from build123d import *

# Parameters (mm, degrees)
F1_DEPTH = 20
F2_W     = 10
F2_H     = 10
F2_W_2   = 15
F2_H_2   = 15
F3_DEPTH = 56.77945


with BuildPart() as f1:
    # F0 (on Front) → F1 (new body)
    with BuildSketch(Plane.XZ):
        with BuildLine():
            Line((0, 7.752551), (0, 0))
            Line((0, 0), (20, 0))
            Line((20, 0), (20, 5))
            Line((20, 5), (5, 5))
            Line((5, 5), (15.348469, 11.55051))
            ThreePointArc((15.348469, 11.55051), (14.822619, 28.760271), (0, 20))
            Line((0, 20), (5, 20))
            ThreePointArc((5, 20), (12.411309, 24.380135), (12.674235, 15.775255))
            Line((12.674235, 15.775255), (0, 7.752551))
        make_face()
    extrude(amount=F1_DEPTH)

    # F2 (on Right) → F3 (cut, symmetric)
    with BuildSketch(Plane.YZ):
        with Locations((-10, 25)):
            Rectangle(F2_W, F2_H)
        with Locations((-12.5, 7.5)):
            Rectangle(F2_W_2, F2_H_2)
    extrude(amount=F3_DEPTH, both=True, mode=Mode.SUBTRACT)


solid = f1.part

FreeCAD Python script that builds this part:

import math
import FreeCAD as App
import Part
import Sketcher
from FreeCAD import Vector
Q = App.Units.Quantity

doc = App.newDocument("Part")
body = doc.addObject("PartDesign::Body", "Body")

# Sketch on XZ plane
sketch1 = body.newObject("Sketcher::SketchObject", "Sketch")
sketch1.AttachmentSupport = (doc.getObject("XZ_Plane"), [""])
sketch1.MapMode = "FlatFace"
sketch1.addGeometry([
    Part.LineSegment(Vector(0, 7.8, 0), Vector(0, 0, 0)),  # 0
    Part.LineSegment(Vector(0, 0, 0), Vector(20, 0, 0)),  # 1
    Part.LineSegment(Vector(20, 0, 0), Vector(20, 5, 0)),  # 2
    Part.LineSegment(Vector(20, 5, 0), Vector(5, 5, 0)),  # 3
    Part.LineSegment(Vector(5, 5, 0), Vector(15.3, 11.6, 0)),  # 4
    Part.ArcOfCircle(Part.Circle(Vector(10, 20, 0), Vector(0, 0, 1), 10), math.radians(-58), math.radians(180)),  # 5
    Part.LineSegment(Vector(0, 20, 0), Vector(5, 20, 0)),  # 6
    Part.ArcOfCircle(Part.Circle(Vector(10, 20, 0), Vector(0, 0, 1), 5), math.radians(-58), math.radians(180)),  # 7
    Part.LineSegment(Vector(12.7, 15.8, 0), Vector(0, 7.8, 0)),  # 8
], False)
sketch1.addConstraint([
    Sketcher.Constraint("Coincident", 0, 2, 1, 1),
    Sketcher.Constraint("Coincident", 1, 2, 2, 1),
    Sketcher.Constraint("Coincident", 2, 2, 3, 1),
    Sketcher.Constraint("Coincident", 3, 2, 4, 1),
    Sketcher.Constraint("Tangent", 4, 2, 5, 1),
    Sketcher.Constraint("Coincident", 5, 2, 6, 1),
    Sketcher.Constraint("Coincident", 6, 2, 7, 2),
    Sketcher.Constraint("Tangent", 7, 1, 8, 1),
    Sketcher.Constraint("Coincident", 8, 2, 0, 1),
    Sketcher.Constraint("Vertical", 0),
    Sketcher.Constraint("Horizontal", 1),
    Sketcher.Constraint("Vertical", 2),
    Sketcher.Constraint("Horizontal", 3),
    Sketcher.Constraint("Horizontal", 6),
    Sketcher.Constraint("Coincident", 0, 2, -1, 1),
    Sketcher.Constraint("Coincident", 7, 3, 5, 3),
    Sketcher.Constraint("PointOnObject", 5, 2, -2),
    Sketcher.Constraint("Parallel", 4, 8),
    Sketcher.Constraint("Horizontal", 7, 3, 5, 2),
    Sketcher.Constraint("Vertical", 3, 2, 6, 2),
    Sketcher.Constraint("Equal", 6, 2),
    Sketcher.Constraint("Radius", 5, Q("10 mm")),
    Sketcher.Constraint("Radius", 7, Q("5 mm")),
    Sketcher.Constraint("DistanceX", 1, 1, 1, 2, Q("20 mm")),
    Sketcher.Constraint("Distance", 8, Q("15 mm")),
])
pad1 = body.newObject("PartDesign::Pad", "Pad")
pad1.Profile = sketch1
pad1.Length = 20

# Sketch on YZ plane
sketch2 = body.newObject("Sketcher::SketchObject", "Sketch001")
sketch2.AttachmentSupport = (doc.getObject("YZ_Plane"), [""])
sketch2.MapMode = "FlatFace"
sketch2.addGeometry([
    Part.LineSegment(Vector(-15, 30, 0), Vector(-15, 20, 0)),  # 0
    Part.LineSegment(Vector(-15, 20, 0), Vector(-5, 20, 0)),  # 1
    Part.LineSegment(Vector(-5, 20, 0), Vector(-5, 30, 0)),  # 2
    Part.LineSegment(Vector(-5, 30, 0), Vector(-15, 30, 0)),  # 3
    Part.LineSegment(Vector(-20, 15, 0), Vector(-20, 0, 0)),  # 4
    Part.LineSegment(Vector(-20, 0, 0), Vector(-5, 0, 0)),  # 5
    Part.LineSegment(Vector(-5, 0, 0), Vector(-5, 15, 0)),  # 6
    Part.LineSegment(Vector(-5, 15, 0), Vector(-20, 15, 0)),  # 7
], False)
sketch2.addConstraint([
    Sketcher.Constraint("Coincident", 0, 2, 1, 1),
    Sketcher.Constraint("Coincident", 1, 2, 2, 1),
    Sketcher.Constraint("Coincident", 2, 2, 3, 1),
    Sketcher.Constraint("Coincident", 3, 2, 0, 1),
    Sketcher.Constraint("Coincident", 4, 2, 5, 1),
    Sketcher.Constraint("Coincident", 5, 2, 6, 1),
    Sketcher.Constraint("Coincident", 6, 2, 7, 1),
    Sketcher.Constraint("Coincident", 7, 2, 4, 1),
    Sketcher.Constraint("Vertical", 0),
    Sketcher.Constraint("Horizontal", 1),
    Sketcher.Constraint("Vertical", 2),
    Sketcher.Constraint("Horizontal", 3),
    Sketcher.Constraint("Vertical", 4),
    Sketcher.Constraint("Horizontal", 5),
    Sketcher.Constraint("Vertical", 6),
    Sketcher.Constraint("Horizontal", 7),
    Sketcher.Constraint("PointOnObject", 4, 2, -1),
    Sketcher.Constraint("Vertical", 2, 2, 5, 2),
    Sketcher.Constraint("Equal", 3, 0),
    Sketcher.Constraint("Equal", 7, 4),
    Sketcher.Constraint("DistanceX", 1, 1, 1, 2, Q("10 mm")),
    Sketcher.Constraint("DistanceX", 5, 1, 5, 2, Q("15 mm")),
    Sketcher.Constraint("DistanceX", 0, 2, -1, 1, Q("15 mm")),
    Sketcher.Constraint("DistanceY", -1, 1, 0, 2, Q("20 mm")),
])
pocket1 = body.newObject("PartDesign::Pocket", "Pocket")
pocket1.Profile = sketch2
pocket1.Length = 113.5589
pocket1.Midplane = True

doc.recompute()
